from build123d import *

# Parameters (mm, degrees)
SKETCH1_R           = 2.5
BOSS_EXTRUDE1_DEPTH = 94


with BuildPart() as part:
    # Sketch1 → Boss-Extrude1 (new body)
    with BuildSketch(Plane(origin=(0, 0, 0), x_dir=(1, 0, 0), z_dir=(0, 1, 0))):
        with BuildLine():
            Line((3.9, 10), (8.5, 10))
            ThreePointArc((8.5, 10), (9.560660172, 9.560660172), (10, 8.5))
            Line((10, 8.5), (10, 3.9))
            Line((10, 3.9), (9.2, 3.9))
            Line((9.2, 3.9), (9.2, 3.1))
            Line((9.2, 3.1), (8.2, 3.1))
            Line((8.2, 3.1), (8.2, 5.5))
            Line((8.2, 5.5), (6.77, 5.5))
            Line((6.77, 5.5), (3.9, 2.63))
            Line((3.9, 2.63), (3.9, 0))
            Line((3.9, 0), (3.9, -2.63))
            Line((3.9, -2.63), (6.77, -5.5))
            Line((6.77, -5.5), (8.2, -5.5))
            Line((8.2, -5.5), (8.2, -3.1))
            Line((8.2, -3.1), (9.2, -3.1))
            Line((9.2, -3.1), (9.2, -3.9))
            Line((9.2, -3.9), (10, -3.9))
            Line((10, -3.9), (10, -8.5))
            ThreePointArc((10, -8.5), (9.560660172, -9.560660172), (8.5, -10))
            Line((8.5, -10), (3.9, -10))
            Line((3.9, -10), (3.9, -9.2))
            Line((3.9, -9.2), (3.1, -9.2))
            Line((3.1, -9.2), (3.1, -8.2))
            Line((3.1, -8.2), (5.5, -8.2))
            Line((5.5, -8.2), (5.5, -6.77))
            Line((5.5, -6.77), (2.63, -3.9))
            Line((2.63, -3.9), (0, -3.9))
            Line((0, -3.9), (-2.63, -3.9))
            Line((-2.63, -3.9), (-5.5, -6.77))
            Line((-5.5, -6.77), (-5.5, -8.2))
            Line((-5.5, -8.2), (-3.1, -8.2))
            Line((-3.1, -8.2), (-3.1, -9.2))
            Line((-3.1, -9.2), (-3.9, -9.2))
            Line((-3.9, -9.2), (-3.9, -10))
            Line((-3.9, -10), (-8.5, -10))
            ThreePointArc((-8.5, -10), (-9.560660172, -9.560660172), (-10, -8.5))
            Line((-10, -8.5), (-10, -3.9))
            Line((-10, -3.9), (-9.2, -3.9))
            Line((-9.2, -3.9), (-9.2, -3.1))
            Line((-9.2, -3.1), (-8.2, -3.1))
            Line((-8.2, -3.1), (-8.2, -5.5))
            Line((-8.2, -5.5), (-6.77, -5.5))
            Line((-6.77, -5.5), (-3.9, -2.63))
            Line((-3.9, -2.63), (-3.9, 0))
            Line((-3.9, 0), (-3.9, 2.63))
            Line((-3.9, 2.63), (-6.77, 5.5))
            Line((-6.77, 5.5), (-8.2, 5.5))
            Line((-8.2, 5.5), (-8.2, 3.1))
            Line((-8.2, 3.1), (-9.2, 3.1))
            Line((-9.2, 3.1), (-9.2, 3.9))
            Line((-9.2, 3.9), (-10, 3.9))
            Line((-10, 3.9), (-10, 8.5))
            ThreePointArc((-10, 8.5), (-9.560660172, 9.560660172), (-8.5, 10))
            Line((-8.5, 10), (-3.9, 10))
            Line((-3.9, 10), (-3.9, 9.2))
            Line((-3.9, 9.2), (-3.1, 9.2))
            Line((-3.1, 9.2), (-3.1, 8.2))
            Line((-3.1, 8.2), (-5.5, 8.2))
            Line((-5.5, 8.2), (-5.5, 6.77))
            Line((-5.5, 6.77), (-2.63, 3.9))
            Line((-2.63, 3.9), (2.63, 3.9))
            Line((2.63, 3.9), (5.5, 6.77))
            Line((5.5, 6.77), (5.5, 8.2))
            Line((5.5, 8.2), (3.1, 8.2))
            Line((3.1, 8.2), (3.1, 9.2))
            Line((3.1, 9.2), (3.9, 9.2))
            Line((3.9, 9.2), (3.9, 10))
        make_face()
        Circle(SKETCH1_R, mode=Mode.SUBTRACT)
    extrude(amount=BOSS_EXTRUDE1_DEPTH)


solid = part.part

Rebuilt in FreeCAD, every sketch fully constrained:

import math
import FreeCAD as App
import Part
import Sketcher

doc = App.newDocument("Part")
body = doc.addObject("PartDesign::Body", "Body")

# Sketch on XZ plane
sketch1 = body.newObject("Sketcher::SketchObject", "Sketch")
sketch1.AttachmentSupport = (doc.getObject("XZ_Plane"), [""])
sketch1.MapMode = "FlatFace"
sketch1.addGeometry([
    Part.LineSegment(App.Vector(8.5, -10, 0), App.Vector(3.9, -10, 0)),  # 0
    Part.LineSegment(App.Vector(3.9, -10, 0), App.Vector(3.9, -9.2, 0)),  # 1
    Part.LineSegment(App.Vector(3.9, -9.2, 0), App.Vector(3.1, -9.2, 0)),  # 2
    Part.LineSegment(App.Vector(3.1, -9.2, 0), App.Vector(3.1, -8.2, 0)),  # 3
    Part.LineSegment(App.Vector(3.1, -8.2, 0), App.Vector(5.5, -8.2, 0)),  # 4
    Part.LineSegment(App.Vector(5.5, -8.2, 0), App.Vector(5.5, -6.8, 0)),  # 5
    Part.LineSegment(App.Vector(5.5, -6.8, 0), App.Vector(2.6, -3.9, 0)),  # 6
    Part.LineSegment(App.Vector(2.6, -3.9, 0), App.Vector(-2.6, -3.9, 0)),  # 7
    Part.LineSegment(App.Vector(-2.6, -3.9, 0), App.Vector(-5.5, -6.8, 0)),  # 8
    Part.LineSegment(App.Vector(-5.5, -6.8, 0), App.Vector(-5.5, -8.2, 0)),  # 9
    Part.LineSegment(App.Vector(-5.5, -8.2, 0), App.Vector(-3.1, -8.2, 0)),  # 10
    Part.LineSegment(App.Vector(-3.1, -8.2, 0), App.Vector(-3.1, -9.2, 0)),  # 11
    Part.LineSegment(App.Vector(-3.1, -9.2, 0), App.Vector(-3.9, -9.2, 0)),  # 12
    Part.LineSegment(App.Vector(-3.9, -9.2, 0), App.Vector(-3.9, -10, 0)),  # 13
    Part.LineSegment(App.Vector(-3.9, -10, 0), App.Vector(-8.5, -10, 0)),  # 14
    Part.ArcOfCircle(Part.Circle(App.Vector(-8.5, -8.5, 0), App.Vector(0, 0, 1), 1.5), math.radians(180), math.radians(270)),  # 15
    Part.LineSegment(App.Vector(-10, -8.5, 0), App.Vector(-10, -3.9, 0)),  # 16
    Part.LineSegment(App.Vector(-10, -3.9, 0), App.Vector(-9.2, -3.9, 0)),  # 17
    Part.LineSegment(App.Vector(-9.2, -3.9, 0), App.Vector(-9.2, -3.1, 0)),  # 18
    Part.LineSegment(App.Vector(-9.2, -3.1, 0), App.Vector(-8.2, -3.1, 0)),  # 19
    Part.LineSegment(App.Vector(-8.2, -3.1, 0), App.Vector(-8.2, -5.5, 0)),  # 20
    Part.LineSegment(App.Vector(-8.2, -5.5, 0), App.Vector(-6.8, -5.5, 0)),  # 21
    Part.LineSegment(App.Vector(-6.8, -5.5, 0), App.Vector(-3.9, -2.6, 0)),  # 22
    Part.LineSegment(App.Vector(-3.9, -2.6, 0), App.Vector(-3.9, 2.6, 0)),  # 23
    Part.LineSegment(App.Vector(-3.9, 2.6, 0), App.Vector(-6.8, 5.5, 0)),  # 24
    Part.LineSegment(App.Vector(-6.8, 5.5, 0), App.Vector(-8.2, 5.5, 0)),  # 25
    Part.LineSegment(App.Vector(-8.2, 5.5, 0), App.Vector(-8.2, 3.1, 0)),  # 26
    Part.LineSegment(App.Vector(-8.2, 3.1, 0), App.Vector(-9.2, 3.1, 0)),  # 27
    Part.LineSegment(App.Vector(-9.2, 3.1, 0), App.Vector(-9.2, 3.9, 0)),  # 28
    Part.LineSegment(App.Vector(-9.2, 3.9, 0), App.Vector(-10, 3.9, 0)),  # 29
    Part.LineSegment(App.Vector(-10, 3.9, 0), App.Vector(-10, 8.5, 0)),  # 30
    Part.ArcOfCircle(Part.Circle(App.Vector(-8.5, 8.5, 0), App.Vector(0, 0, 1), 1.5), math.radians(90), math.radians(180)),  # 31
    Part.LineSegment(App.Vector(-8.5, 10, 0), App.Vector(-3.9, 10, 0)),  # 32
    Part.LineSegment(App.Vector(-3.9, 10, 0), App.Vector(-3.9, 9.2, 0)),  # 33
    Part.LineSegment(App.Vector(-3.9, 9.2, 0), App.Vector(-3.1, 9.2, 0)),  # 34
    Part.LineSegment(App.Vector(-3.1, 9.2, 0), App.Vector(-3.1, 8.2, 0)),  # 35
    Part.LineSegment(App.Vector(-3.1, 8.2, 0), App.Vector(-5.5, 8.2, 0)),  # 36
    Part.LineSegment(App.Vector(-5.5, 8.2, 0), App.Vector(-5.5, 6.8, 0)),  # 37
    Part.LineSegment(App.Vector(-5.5, 6.8, 0), App.Vector(-2.6, 3.9, 0)),  # 38
    Part.LineSegment(App.Vector(-2.6, 3.9, 0), App.Vector(2.6, 3.9, 0)),  # 39
    Part.LineSegment(App.Vector(2.6, 3.9, 0), App.Vector(5.5, 6.8, 0)),  # 40
    Part.LineSegment(App.Vector(5.5, 6.8, 0), App.Vector(5.5, 8.2, 0)),  # 41
    Part.LineSegment(App.Vector(5.5, 8.2, 0), App.Vector(3.1, 8.2, 0)),  # 42
    Part.LineSegment(App.Vector(3.1, 8.2, 0), App.Vector(3.1, 9.2, 0)),  # 43
    Part.LineSegment(App.Vector(3.1, 9.2, 0), App.Vector(3.9, 9.2, 0)),  # 44
    Part.LineSegment(App.Vector(3.9, 9.2, 0), App.Vector(3.9, 10, 0)),  # 45
    Part.LineSegment(App.Vector(3.9, 10, 0), App.Vector(8.5, 10, 0)),  # 46
    Part.ArcOfCircle(Part.Circle(App.Vector(8.5, 8.5, 0), App.Vector(0, 0, 1), 1.5), math.radians(0), math.radians(90)),  # 47
    Part.LineSegment(App.Vector(10, 8.5, 0), App.Vector(10, 3.9, 0)),  # 48
    Part.LineSegment(App.Vector(10, 3.9, 0), App.Vector(9.2, 3.9, 0)),  # 49
    Part.LineSegment(App.Vector(9.2, 3.9, 0), App.Vector(9.2, 3.1, 0)),  # 50
    Part.LineSegment(App.Vector(9.2, 3.1, 0), App.Vector(8.2, 3.1, 0)),  # 51
    Part.LineSegment(App.Vector(8.2, 3.1, 0), App.Vector(8.2, 5.5, 0)),  # 52
    Part.LineSegment(App.Vector(8.2, 5.5, 0), App.Vector(6.8, 5.5, 0)),  # 53
    Part.LineSegment(App.Vector(6.8, 5.5, 0), App.Vector(3.9, 2.6, 0)),  # 54
    Part.LineSegment(App.Vector(3.9, 2.6, 0), App.Vector(3.9, -2.6, 0)),  # 55
    Part.LineSegment(App.Vector(3.9, -2.6, 0), App.Vector(6.8, -5.5, 0)),  # 56
    Part.LineSegment(App.Vector(6.8, -5.5, 0), App.Vector(8.2, -5.5, 0)),  # 57
    Part.LineSegment(App.Vector(8.2, -5.5, 0), App.Vector(8.2, -3.1, 0)),  # 58
    Part.LineSegment(App.Vector(8.2, -3.1, 0), App.Vector(9.2, -3.1, 0)),  # 59
    Part.LineSegment(App.Vector(9.2, -3.1, 0), App.Vector(9.2, -3.9, 0)),  # 60
    Part.LineSegment(App.Vector(9.2, -3.9, 0), App.Vector(10, -3.9, 0)),  # 61
    Part.LineSegment(App.Vector(10, -3.9, 0), App.Vector(10, -8.5, 0)),  # 62
    Part.ArcOfCircle(Part.Circle(App.Vector(8.5, -8.5, 0), App.Vector(0, 0, 1), 1.5), math.radians(-90), math.radians(0)),  # 63
    Part.Circle(App.Vector(0, 0, 0), App.Vector(0, 0, 1), 2.5),  # 64
], False)
sketch1.addConstraint([
    Sketcher.Constraint("Coincident", 0, 2, 1, 1),
    Sketcher.Constraint("Coincident", 1, 2, 2, 1),
    Sketcher.Constraint("Coincident", 2, 2, 3, 1),
    Sketcher.Constraint("Coincident", 3, 2, 4, 1),
    Sketcher.Constraint("Coincident", 4, 2, 5, 1),
    Sketcher.Constraint("Coincident", 5, 2, 6, 1),
    Sketcher.Constraint("Coincident", 6, 2, 7, 1),
    Sketcher.Constraint("Coincident", 7, 2, 8, 1),
    Sketcher.Constraint("Coincident", 8, 2, 9, 1),
    Sketcher.Constraint("Coincident", 9, 2, 10, 1),
    Sketcher.Constraint("Coincident", 10, 2, 11, 1),
    Sketcher.Constraint("Coincident", 11, 2, 12, 1),
    Sketcher.Constraint("Coincident", 12, 2, 13, 1),
    Sketcher.Constraint("Coincident", 13, 2, 14, 1),
    Sketcher.Constraint("Tangent", 14, 2, 15, 2),
    Sketcher.Constraint("Tangent", 15, 1, 16, 1),
    Sketcher.Constraint("Coincident", 16, 2, 17, 1),
    Sketcher.Constraint("Coincident", 17, 2, 18, 1),
    Sketcher.Constraint("Coincident", 18, 2, 19, 1),
    Sketcher.Constraint("Coincident", 19, 2, 20, 1),
    Sketcher.Constraint("Coincident", 20, 2, 21, 1),
    Sketcher.Constraint("Coincident", 21, 2, 22, 1),
    Sketcher.Constraint("Coincident", 22, 2, 23, 1),
    Sketcher.Constraint("Coincident", 23, 2, 24, 1),
    Sketcher.Constraint("Coincident", 24, 2, 25, 1),
    Sketcher.Constraint("Coincident", 25, 2, 26, 1),
    Sketcher.Constraint("Coincident", 26, 2, 27, 1),
    Sketcher.Constraint("Coincident", 27, 2, 28, 1),
    Sketcher.Constraint("Coincident", 28, 2, 29, 1),
    Sketcher.Constraint("Coincident", 29, 2, 30, 1),
    Sketcher.Constraint("Tangent", 30, 2, 31, 2),
    Sketcher.Constraint("Tangent", 31, 1, 32, 1),
    Sketcher.Constraint("Coincident", 32, 2, 33, 1),
    Sketcher.Constraint("Coincident", 33, 2, 34, 1),
    Sketcher.Constraint("Coincident", 34, 2, 35, 1),
    Sketcher.Constraint("Coincident", 35, 2, 36, 1),
    Sketcher.Constraint("Coincident", 36, 2, 37, 1),
    Sketcher.Constraint("Coincident", 37, 2, 38, 1),
    Sketcher.Constraint("Coincident", 38, 2, 39, 1),
    Sketcher.Constraint("Coincident", 39, 2, 40, 1),
    Sketcher.Constraint("Coincident", 40, 2, 41, 1),
    Sketcher.Constraint("Coincident", 41, 2, 42, 1),
    Sketcher.Constraint("Coincident", 42, 2, 43, 1),
    Sketcher.Constraint("Coincident", 43, 2, 44, 1),
    Sketcher.Constraint("Coincident", 44, 2, 45, 1),
    Sketcher.Constraint("Coincident", 45, 2, 46, 1),
    Sketcher.Constraint("Tangent", 46, 2, 47, 2),
    Sketcher.Constraint("Tangent", 47, 1, 48, 1),
    Sketcher.Constraint("Coincident", 48, 2, 49, 1),
    Sketcher.Constraint("Coincident", 49, 2, 50, 1),
    Sketcher.Constraint("Coincident", 50, 2, 51, 1),
    Sketcher.Constraint("Coincident", 51, 2, 52, 1),
    Sketcher.Constraint("Coincident", 52, 2, 53, 1),
    Sketcher.Constraint("Coincident", 53, 2, 54, 1),
    Sketcher.Constraint("Coincident", 54, 2, 55, 1),
    Sketcher.Constraint("Coincident", 55, 2, 56, 1),
    Sketcher.Constraint("Coincident", 56, 2, 57, 1),
    Sketcher.Constraint("Coincident", 57, 2, 58, 1),
    Sketcher.Constraint("Coincident", 58, 2, 59, 1),
    Sketcher.Constraint("Coincident", 59, 2, 60, 1),
    Sketcher.Constraint("Coincident", 60, 2, 61, 1),
    Sketcher.Constraint("Coincident", 61, 2, 62, 1),
    Sketcher.Constraint("Tangent", 62, 2, 63, 2),
    Sketcher.Constraint("Tangent", 63, 1, 0, 1),
    Sketcher.Constraint("Horizontal", 0),
    Sketcher.Constraint("Vertical", 1),
    Sketcher.Constraint("Horizontal", 2),
    Sketcher.Constraint("Vertical", 3),
    Sketcher.Constraint("Horizontal", 4),
    Sketcher.Constraint("Vertical", 5),
    Sketcher.Constraint("Horizontal", 7),
    Sketcher.Constraint("Vertical", 9),
    Sketcher.Constraint("Horizontal", 10),
    Sketcher.Constraint("Vertical", 11),
    Sketcher.Constraint("Horizontal", 12),
    Sketcher.Constraint("Vertical", 13),
    Sketcher.Constraint("Horizontal", 14),
    Sketcher.Constraint("Vertical", 16),
    Sketcher.Constraint("Horizontal", 17),
    Sketcher.Constraint("Vertical", 18),
    Sketcher.Constraint("Horizontal", 19),
    Sketcher.Constraint("Vertical", 20),
    Sketcher.Constraint("Horizontal", 21),
    Sketcher.Constraint("Vertical", 23),
    Sketcher.Constraint("Horizontal", 25),
    Sketcher.Constraint("Vertical", 26),
    Sketcher.Constraint("Horizontal", 27),
    Sketcher.Constraint("Vertical", 28),
    Sketcher.Constraint("Horizontal", 29),
    Sketcher.Constraint("Vertical", 30),
    Sketcher.Constraint("Horizontal", 32),
    Sketcher.Constraint("Vertical", 33),
    Sketcher.Constraint("Horizontal", 34),
    Sketcher.Constraint("Vertical", 35),
    Sketcher.Constraint("Horizontal", 36),
    Sketcher.Constraint("Vertical", 37),
    Sketcher.Constraint("Horizontal", 39),
    Sketcher.Constraint("Vertical", 41),
    Sketcher.Constraint("Horizontal", 42),
    Sketcher.Constraint("Vertical", 43),
    Sketcher.Constraint("Horizontal", 44),
    Sketcher.Constraint("Vertical", 45),
    Sketcher.Constraint("Horizontal", 46),
    Sketcher.Constraint("Vertical", 48),
    Sketcher.Constraint("Horizontal", 49),
    Sketcher.Constraint("Vertical", 50),
    Sketcher.Constraint("Horizontal", 51),
    Sketcher.Constraint("Vertical", 52),
    Sketcher.Constraint("Horizontal", 53),
    Sketcher.Constraint("Vertical", 55),
    Sketcher.Constraint("Horizontal", 57),
    Sketcher.Constraint("Vertical", 58),
    Sketcher.Constraint("Horizontal", 59),
    Sketcher.Constraint("Vertical", 60),
    Sketcher.Constraint("Horizontal", 61),
    Sketcher.Constraint("Vertical", 62),
    Sketcher.Constraint("Coincident", 64, 3, -1, 1),
    Sketcher.Constraint("Equal", 15, 31),
    Sketcher.Constraint("Equal", 31, 47),
    Sketcher.Constraint("Equal", 47, 63),
    Sketcher.Constraint("Symmetric", 15, 3, 47, 3, -1, 1),
    Sketcher.Constraint("Symmetric", 31, 3, 63, 3, -1, 1),
    Sketcher.Constraint("Symmetric", 1, 2, 33, 2, -1, 1),
    Sketcher.Constraint("Symmetric", 3, 2, 35, 2, -1, 1),
    Sketcher.Constraint("Symmetric", 5, 2, 37, 2, -1, 1),
    Sketcher.Constraint("Symmetric", 6, 2, 38, 2, -1, 1),
    Sketcher.Constraint("Symmetric", 8, 2, 40, 2, -1, 1),
    Sketcher.Constraint("Symmetric", 10, 2, 42, 2, -1, 1),
    Sketcher.Constraint("Symmetric", 12, 2, 44, 2, -1, 1),
    Sketcher.Constraint("Symmetric", 17, 2, 49, 2, -1, 1),
    Sketcher.Constraint("Symmetric", 19, 2, 51, 2, -1, 1),
    Sketcher.Constraint("Symmetric", 21, 2, 53, 2, -1, 1),
    Sketcher.Constraint("Symmetric", 22, 2, 54, 2, -1, 1),
    Sketcher.Constraint("Symmetric", 24, 2, 56, 2, -1, 1),
    Sketcher.Constraint("Symmetric", 26, 2, 58, 2, -1, 1),
    Sketcher.Constraint("Symmetric", 28, 2, 60, 2, -1, 1),
    Sketcher.Constraint("Symmetric", 31, 3, 47, 3, -2),
    Sketcher.Constraint("Symmetric", 5, 2, 8, 2, -2),
    Sketcher.Constraint("Symmetric", 3, 2, 10, 2, -2),
    Sketcher.Constraint("Symmetric", 1, 2, 12, 2, -2),
    Sketcher.Constraint("Symmetric", 28, 2, 49, 2, -2),
    Sketcher.Constraint("Symmetric", 26, 2, 51, 2, -2),
    Sketcher.Constraint("Symmetric", 24, 2, 53, 2, -2),
    Sketcher.Constraint("Perpendicular", 6, 8),
    Sketcher.Constraint("Parallel", 8, 22),
    Sketcher.Constraint("Perpendicular", 22, 24),
    Sketcher.Constraint("Perpendicular", 38, 40),
    Sketcher.Constraint("Perpendicular", 54, 56),
    Sketcher.Constraint("Horizontal", 7, 2, 16, 2),
    Sketcher.Constraint("Horizontal", 23, 2, 54, 2),
    Sketcher.Constraint("Vertical", 13, 2, 22, 2),
    Sketcher.Constraint("Equal", 12, 17),
    Sketcher.Constraint("Equal", 61, 1),
    Sketcher.Constraint("Equal", 59, 3),
    Sketcher.Constraint("Equal", 57, 5),
    Sketcher.Constraint("Equal", 46, 16),
    Sketcher.Constraint("Equal", 13, 18),
    Sketcher.Constraint("Equal", 42, 20),
    Sketcher.Constraint("Equal", 39, 23),
    Sketcher.Constraint("Diameter", 64, 5.0),
    Sketcher.Constraint("Radius", 15, 1.5),
    Sketcher.Constraint("DistanceX", 19, 1, 19, 2, 1.0),
    Sketcher.Constraint("DistanceX", 0, 2, 0, 1, 4.6),
    Sketcher.Constraint("DistanceX", 2, 2, 2, 1, 0.8),
    Sketcher.Constraint("DistanceX", 4, 1, 4, 2, 2.4),
    Sketcher.Constraint("DistanceY", 0, 2, -1, 1, 10.0),
    Sketcher.Constraint("DistanceX", 7, 2, 7, 1, 5.26),
])
pad1 = body.newObject("PartDesign::Pad", "Pad")
pad1.Profile = sketch1
pad1.Length = 94
pad1.Reversed = True

doc.recompute()
